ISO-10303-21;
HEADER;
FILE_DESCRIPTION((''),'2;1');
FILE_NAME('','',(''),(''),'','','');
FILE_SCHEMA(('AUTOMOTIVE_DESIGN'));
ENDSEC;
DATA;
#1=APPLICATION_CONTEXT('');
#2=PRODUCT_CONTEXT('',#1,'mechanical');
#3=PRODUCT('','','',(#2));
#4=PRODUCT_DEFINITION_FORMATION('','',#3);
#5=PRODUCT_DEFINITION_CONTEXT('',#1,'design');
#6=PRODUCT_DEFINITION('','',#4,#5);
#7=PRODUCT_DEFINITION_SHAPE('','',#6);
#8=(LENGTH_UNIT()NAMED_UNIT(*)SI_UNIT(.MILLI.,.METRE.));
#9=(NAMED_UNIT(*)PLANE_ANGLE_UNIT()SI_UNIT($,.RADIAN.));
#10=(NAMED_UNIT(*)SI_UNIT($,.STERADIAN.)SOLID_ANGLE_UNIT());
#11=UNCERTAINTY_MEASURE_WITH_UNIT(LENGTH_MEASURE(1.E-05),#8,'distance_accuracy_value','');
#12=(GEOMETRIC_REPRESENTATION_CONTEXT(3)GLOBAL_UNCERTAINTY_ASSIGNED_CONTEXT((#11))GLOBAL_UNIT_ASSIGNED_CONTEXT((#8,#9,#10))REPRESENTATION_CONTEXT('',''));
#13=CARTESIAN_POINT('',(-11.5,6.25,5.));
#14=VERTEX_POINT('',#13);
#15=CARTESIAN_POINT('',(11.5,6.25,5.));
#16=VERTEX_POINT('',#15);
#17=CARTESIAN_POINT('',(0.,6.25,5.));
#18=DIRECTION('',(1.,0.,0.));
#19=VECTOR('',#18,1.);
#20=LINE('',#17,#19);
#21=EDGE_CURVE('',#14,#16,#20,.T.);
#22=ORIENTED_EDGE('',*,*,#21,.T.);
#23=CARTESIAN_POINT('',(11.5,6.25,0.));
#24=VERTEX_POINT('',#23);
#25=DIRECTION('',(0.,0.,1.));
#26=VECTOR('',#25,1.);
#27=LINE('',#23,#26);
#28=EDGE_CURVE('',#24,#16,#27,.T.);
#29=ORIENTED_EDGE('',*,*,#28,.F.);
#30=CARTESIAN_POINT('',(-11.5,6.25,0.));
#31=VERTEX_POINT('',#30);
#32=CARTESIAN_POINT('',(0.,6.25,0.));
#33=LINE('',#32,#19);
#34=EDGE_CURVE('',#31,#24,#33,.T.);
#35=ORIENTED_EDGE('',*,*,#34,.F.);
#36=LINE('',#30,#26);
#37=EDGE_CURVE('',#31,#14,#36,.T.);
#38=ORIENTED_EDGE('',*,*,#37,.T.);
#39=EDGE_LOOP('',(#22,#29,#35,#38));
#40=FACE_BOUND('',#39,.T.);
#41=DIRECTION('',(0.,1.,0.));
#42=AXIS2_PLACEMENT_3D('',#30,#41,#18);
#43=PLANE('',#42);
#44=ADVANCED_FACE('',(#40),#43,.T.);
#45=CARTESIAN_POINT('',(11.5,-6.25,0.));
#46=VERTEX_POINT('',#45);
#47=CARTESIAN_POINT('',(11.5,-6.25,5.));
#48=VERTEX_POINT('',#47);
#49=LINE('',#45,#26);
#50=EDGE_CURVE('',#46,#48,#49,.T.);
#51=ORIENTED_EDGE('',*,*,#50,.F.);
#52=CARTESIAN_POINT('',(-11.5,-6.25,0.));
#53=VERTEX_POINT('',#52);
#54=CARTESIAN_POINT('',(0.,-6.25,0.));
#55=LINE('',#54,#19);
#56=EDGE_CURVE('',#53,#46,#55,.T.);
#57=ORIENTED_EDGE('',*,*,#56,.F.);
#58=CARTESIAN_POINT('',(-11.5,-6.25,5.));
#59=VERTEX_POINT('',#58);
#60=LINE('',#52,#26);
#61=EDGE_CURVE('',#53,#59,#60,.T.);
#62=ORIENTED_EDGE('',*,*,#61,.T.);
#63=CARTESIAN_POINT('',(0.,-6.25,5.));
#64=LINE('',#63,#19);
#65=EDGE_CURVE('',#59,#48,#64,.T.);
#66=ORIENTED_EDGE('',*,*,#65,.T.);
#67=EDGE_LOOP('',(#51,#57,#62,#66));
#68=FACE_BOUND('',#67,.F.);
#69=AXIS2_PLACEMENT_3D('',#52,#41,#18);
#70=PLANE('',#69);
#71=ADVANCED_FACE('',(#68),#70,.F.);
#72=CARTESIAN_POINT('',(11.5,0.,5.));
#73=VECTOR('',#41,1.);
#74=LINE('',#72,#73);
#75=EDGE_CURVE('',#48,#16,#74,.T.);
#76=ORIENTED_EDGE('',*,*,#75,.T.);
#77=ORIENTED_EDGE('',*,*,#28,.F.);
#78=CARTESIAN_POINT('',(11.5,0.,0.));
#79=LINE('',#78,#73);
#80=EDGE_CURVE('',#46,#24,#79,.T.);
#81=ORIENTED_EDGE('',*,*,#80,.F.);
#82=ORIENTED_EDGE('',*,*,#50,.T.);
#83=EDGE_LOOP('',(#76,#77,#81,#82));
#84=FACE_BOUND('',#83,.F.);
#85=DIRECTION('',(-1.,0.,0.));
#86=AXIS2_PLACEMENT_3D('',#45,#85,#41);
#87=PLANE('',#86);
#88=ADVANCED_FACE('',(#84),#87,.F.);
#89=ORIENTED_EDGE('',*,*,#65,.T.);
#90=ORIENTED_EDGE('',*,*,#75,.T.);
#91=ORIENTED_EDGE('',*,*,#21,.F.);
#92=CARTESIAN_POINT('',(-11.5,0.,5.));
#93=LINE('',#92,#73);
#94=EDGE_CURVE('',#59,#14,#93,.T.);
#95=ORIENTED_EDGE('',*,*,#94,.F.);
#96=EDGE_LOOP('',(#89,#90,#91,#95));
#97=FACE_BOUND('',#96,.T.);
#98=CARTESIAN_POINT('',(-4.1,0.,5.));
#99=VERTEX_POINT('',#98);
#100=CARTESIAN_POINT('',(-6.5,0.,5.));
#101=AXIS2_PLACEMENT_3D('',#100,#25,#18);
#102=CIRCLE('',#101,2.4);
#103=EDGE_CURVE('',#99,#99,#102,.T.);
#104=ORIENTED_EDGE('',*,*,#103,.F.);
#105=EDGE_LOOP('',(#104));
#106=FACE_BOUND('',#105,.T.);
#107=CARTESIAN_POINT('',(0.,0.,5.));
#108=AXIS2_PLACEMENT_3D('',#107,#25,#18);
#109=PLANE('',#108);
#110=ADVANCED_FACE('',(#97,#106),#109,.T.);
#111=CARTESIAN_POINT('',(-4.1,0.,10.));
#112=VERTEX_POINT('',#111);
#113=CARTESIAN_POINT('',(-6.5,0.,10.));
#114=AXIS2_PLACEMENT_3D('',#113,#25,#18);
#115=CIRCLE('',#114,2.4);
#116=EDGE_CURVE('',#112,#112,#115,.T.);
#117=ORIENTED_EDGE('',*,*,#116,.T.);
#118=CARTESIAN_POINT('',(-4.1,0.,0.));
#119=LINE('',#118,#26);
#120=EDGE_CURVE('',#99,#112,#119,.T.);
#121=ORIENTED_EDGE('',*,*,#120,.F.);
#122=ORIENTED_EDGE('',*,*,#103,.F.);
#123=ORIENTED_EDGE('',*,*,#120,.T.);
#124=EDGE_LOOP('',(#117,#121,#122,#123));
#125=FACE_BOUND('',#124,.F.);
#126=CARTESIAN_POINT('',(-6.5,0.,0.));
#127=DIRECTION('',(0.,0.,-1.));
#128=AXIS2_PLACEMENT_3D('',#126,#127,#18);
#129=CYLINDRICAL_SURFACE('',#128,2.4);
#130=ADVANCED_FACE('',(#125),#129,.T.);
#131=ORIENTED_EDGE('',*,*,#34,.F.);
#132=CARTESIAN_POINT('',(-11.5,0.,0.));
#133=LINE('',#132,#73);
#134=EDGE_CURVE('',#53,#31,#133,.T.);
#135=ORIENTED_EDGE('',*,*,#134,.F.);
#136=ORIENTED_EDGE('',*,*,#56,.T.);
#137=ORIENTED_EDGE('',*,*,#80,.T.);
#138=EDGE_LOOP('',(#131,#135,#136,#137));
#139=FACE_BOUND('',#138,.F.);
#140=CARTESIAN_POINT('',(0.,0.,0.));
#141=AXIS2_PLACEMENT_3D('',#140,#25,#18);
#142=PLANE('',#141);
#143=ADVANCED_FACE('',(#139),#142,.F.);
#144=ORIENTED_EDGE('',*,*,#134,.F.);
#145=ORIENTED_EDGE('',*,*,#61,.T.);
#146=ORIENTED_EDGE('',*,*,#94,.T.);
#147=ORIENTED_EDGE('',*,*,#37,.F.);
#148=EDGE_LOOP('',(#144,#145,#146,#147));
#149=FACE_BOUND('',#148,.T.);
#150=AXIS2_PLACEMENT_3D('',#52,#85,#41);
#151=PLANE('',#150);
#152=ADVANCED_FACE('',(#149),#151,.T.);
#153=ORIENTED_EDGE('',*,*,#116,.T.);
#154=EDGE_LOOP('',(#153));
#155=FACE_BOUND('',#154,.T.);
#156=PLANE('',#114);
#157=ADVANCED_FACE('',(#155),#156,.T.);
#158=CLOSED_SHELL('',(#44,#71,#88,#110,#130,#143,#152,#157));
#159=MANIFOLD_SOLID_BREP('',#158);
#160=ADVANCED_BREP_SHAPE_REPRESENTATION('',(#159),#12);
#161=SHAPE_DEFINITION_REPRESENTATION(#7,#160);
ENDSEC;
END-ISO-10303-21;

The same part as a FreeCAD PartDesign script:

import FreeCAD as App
import Part
import Sketcher
from FreeCAD import Vector
Q = App.Units.Quantity

doc = App.newDocument("Part")
body = doc.addObject("PartDesign::Body", "Body")

sketch1 = body.newObject("Sketcher::SketchObject", "Sketch")
sketch1.AttachmentSupport = (doc.getObject("XY_Plane"), [""])
sketch1.MapMode = "FlatFace"
sketch1.addGeometry(Part.LineSegment(Vector(-11.5, 6.2, 0), Vector(-11.5, -6.2, 0)), False)
sketch1.addGeometry(Part.LineSegment(Vector(-11.5, -6.2, 0), Vector(11.5, -6.2, 0)), False)
sketch1.addGeometry(Part.LineSegment(Vector(11.5, -6.2, 0), Vector(11.5, 6.2, 0)), False)
sketch1.addGeometry(Part.LineSegment(Vector(11.5, 6.2, 0), Vector(-11.5, 6.2, 0)), False)
sketch1.addGeometry(Part.Circle(Vector(-6.5, 0, 0), Vector(0, 0, 1), 2.4), False)
sketch1.addConstraint(Sketcher.Constraint("Coincident", 0, 2, 1, 1))
sketch1.addConstraint(Sketcher.Constraint("Coincident", 1, 2, 2, 1))
sketch1.addConstraint(Sketcher.Constraint("Coincident", 2, 2, 3, 1))
sketch1.addConstraint(Sketcher.Constraint("Coincident", 3, 2, 0, 1))
sketch1.addConstraint(Sketcher.Constraint("Vertical", 0))
sketch1.addConstraint(Sketcher.Constraint("Horizontal", 1))
sketch1.addConstraint(Sketcher.Constraint("Vertical", 2))
sketch1.addConstraint(Sketcher.Constraint("Horizontal", 3))
sketch1.addConstraint(Sketcher.Constraint("Symmetric", 0, 2, 2, 2, -1, 1))
sketch1.addConstraint(Sketcher.Constraint("PointOnObject", 4, 3, -1))
sketch1.addConstraint(Sketcher.Constraint("Diameter", 4, Q("4.8 mm")))
sketch1.addConstraint(Sketcher.Constraint("DistanceX", 1, 1, 1, 2, Q("23 mm")))
sketch1.addConstraint(Sketcher.Constraint("DistanceY", 0, 2, 0, 1, Q("12.5 mm")))
sketch1.addConstraint(Sketcher.Constraint("DistanceX", 0, 2, 4, 3, Q("5 mm")))
pad1 = body.newObject("PartDesign::Pad", "Pad")
pad1.Profile = sketch1
pad1.Length = 5

sketch2 = body.newObject("Sketcher::SketchObject", "Sketch001")
sketch2.AttachmentSupport = (doc.getObject("XY_Plane"), [""])
sketch2.MapMode = "FlatFace"
sketch2.addGeometry(Part.Circle(Vector(-6.5, 0, 0), Vector(0, 0, 1), 2.4), False)
sketch2.addConstraint(Sketcher.Constraint("PointOnObject", 0, 3, -1))
sketch2.addConstraint(Sketcher.Constraint("Diameter", 0, Q("4.8 mm")))
sketch2.addConstraint(Sketcher.Constraint("DistanceX", 0, 3, -1, 1, Q("6.5 mm")))
pad2 = body.newObject("PartDesign::Pad", "Pad001")
pad2.Profile = sketch2
pad2.Length = 10

doc.recompute()
